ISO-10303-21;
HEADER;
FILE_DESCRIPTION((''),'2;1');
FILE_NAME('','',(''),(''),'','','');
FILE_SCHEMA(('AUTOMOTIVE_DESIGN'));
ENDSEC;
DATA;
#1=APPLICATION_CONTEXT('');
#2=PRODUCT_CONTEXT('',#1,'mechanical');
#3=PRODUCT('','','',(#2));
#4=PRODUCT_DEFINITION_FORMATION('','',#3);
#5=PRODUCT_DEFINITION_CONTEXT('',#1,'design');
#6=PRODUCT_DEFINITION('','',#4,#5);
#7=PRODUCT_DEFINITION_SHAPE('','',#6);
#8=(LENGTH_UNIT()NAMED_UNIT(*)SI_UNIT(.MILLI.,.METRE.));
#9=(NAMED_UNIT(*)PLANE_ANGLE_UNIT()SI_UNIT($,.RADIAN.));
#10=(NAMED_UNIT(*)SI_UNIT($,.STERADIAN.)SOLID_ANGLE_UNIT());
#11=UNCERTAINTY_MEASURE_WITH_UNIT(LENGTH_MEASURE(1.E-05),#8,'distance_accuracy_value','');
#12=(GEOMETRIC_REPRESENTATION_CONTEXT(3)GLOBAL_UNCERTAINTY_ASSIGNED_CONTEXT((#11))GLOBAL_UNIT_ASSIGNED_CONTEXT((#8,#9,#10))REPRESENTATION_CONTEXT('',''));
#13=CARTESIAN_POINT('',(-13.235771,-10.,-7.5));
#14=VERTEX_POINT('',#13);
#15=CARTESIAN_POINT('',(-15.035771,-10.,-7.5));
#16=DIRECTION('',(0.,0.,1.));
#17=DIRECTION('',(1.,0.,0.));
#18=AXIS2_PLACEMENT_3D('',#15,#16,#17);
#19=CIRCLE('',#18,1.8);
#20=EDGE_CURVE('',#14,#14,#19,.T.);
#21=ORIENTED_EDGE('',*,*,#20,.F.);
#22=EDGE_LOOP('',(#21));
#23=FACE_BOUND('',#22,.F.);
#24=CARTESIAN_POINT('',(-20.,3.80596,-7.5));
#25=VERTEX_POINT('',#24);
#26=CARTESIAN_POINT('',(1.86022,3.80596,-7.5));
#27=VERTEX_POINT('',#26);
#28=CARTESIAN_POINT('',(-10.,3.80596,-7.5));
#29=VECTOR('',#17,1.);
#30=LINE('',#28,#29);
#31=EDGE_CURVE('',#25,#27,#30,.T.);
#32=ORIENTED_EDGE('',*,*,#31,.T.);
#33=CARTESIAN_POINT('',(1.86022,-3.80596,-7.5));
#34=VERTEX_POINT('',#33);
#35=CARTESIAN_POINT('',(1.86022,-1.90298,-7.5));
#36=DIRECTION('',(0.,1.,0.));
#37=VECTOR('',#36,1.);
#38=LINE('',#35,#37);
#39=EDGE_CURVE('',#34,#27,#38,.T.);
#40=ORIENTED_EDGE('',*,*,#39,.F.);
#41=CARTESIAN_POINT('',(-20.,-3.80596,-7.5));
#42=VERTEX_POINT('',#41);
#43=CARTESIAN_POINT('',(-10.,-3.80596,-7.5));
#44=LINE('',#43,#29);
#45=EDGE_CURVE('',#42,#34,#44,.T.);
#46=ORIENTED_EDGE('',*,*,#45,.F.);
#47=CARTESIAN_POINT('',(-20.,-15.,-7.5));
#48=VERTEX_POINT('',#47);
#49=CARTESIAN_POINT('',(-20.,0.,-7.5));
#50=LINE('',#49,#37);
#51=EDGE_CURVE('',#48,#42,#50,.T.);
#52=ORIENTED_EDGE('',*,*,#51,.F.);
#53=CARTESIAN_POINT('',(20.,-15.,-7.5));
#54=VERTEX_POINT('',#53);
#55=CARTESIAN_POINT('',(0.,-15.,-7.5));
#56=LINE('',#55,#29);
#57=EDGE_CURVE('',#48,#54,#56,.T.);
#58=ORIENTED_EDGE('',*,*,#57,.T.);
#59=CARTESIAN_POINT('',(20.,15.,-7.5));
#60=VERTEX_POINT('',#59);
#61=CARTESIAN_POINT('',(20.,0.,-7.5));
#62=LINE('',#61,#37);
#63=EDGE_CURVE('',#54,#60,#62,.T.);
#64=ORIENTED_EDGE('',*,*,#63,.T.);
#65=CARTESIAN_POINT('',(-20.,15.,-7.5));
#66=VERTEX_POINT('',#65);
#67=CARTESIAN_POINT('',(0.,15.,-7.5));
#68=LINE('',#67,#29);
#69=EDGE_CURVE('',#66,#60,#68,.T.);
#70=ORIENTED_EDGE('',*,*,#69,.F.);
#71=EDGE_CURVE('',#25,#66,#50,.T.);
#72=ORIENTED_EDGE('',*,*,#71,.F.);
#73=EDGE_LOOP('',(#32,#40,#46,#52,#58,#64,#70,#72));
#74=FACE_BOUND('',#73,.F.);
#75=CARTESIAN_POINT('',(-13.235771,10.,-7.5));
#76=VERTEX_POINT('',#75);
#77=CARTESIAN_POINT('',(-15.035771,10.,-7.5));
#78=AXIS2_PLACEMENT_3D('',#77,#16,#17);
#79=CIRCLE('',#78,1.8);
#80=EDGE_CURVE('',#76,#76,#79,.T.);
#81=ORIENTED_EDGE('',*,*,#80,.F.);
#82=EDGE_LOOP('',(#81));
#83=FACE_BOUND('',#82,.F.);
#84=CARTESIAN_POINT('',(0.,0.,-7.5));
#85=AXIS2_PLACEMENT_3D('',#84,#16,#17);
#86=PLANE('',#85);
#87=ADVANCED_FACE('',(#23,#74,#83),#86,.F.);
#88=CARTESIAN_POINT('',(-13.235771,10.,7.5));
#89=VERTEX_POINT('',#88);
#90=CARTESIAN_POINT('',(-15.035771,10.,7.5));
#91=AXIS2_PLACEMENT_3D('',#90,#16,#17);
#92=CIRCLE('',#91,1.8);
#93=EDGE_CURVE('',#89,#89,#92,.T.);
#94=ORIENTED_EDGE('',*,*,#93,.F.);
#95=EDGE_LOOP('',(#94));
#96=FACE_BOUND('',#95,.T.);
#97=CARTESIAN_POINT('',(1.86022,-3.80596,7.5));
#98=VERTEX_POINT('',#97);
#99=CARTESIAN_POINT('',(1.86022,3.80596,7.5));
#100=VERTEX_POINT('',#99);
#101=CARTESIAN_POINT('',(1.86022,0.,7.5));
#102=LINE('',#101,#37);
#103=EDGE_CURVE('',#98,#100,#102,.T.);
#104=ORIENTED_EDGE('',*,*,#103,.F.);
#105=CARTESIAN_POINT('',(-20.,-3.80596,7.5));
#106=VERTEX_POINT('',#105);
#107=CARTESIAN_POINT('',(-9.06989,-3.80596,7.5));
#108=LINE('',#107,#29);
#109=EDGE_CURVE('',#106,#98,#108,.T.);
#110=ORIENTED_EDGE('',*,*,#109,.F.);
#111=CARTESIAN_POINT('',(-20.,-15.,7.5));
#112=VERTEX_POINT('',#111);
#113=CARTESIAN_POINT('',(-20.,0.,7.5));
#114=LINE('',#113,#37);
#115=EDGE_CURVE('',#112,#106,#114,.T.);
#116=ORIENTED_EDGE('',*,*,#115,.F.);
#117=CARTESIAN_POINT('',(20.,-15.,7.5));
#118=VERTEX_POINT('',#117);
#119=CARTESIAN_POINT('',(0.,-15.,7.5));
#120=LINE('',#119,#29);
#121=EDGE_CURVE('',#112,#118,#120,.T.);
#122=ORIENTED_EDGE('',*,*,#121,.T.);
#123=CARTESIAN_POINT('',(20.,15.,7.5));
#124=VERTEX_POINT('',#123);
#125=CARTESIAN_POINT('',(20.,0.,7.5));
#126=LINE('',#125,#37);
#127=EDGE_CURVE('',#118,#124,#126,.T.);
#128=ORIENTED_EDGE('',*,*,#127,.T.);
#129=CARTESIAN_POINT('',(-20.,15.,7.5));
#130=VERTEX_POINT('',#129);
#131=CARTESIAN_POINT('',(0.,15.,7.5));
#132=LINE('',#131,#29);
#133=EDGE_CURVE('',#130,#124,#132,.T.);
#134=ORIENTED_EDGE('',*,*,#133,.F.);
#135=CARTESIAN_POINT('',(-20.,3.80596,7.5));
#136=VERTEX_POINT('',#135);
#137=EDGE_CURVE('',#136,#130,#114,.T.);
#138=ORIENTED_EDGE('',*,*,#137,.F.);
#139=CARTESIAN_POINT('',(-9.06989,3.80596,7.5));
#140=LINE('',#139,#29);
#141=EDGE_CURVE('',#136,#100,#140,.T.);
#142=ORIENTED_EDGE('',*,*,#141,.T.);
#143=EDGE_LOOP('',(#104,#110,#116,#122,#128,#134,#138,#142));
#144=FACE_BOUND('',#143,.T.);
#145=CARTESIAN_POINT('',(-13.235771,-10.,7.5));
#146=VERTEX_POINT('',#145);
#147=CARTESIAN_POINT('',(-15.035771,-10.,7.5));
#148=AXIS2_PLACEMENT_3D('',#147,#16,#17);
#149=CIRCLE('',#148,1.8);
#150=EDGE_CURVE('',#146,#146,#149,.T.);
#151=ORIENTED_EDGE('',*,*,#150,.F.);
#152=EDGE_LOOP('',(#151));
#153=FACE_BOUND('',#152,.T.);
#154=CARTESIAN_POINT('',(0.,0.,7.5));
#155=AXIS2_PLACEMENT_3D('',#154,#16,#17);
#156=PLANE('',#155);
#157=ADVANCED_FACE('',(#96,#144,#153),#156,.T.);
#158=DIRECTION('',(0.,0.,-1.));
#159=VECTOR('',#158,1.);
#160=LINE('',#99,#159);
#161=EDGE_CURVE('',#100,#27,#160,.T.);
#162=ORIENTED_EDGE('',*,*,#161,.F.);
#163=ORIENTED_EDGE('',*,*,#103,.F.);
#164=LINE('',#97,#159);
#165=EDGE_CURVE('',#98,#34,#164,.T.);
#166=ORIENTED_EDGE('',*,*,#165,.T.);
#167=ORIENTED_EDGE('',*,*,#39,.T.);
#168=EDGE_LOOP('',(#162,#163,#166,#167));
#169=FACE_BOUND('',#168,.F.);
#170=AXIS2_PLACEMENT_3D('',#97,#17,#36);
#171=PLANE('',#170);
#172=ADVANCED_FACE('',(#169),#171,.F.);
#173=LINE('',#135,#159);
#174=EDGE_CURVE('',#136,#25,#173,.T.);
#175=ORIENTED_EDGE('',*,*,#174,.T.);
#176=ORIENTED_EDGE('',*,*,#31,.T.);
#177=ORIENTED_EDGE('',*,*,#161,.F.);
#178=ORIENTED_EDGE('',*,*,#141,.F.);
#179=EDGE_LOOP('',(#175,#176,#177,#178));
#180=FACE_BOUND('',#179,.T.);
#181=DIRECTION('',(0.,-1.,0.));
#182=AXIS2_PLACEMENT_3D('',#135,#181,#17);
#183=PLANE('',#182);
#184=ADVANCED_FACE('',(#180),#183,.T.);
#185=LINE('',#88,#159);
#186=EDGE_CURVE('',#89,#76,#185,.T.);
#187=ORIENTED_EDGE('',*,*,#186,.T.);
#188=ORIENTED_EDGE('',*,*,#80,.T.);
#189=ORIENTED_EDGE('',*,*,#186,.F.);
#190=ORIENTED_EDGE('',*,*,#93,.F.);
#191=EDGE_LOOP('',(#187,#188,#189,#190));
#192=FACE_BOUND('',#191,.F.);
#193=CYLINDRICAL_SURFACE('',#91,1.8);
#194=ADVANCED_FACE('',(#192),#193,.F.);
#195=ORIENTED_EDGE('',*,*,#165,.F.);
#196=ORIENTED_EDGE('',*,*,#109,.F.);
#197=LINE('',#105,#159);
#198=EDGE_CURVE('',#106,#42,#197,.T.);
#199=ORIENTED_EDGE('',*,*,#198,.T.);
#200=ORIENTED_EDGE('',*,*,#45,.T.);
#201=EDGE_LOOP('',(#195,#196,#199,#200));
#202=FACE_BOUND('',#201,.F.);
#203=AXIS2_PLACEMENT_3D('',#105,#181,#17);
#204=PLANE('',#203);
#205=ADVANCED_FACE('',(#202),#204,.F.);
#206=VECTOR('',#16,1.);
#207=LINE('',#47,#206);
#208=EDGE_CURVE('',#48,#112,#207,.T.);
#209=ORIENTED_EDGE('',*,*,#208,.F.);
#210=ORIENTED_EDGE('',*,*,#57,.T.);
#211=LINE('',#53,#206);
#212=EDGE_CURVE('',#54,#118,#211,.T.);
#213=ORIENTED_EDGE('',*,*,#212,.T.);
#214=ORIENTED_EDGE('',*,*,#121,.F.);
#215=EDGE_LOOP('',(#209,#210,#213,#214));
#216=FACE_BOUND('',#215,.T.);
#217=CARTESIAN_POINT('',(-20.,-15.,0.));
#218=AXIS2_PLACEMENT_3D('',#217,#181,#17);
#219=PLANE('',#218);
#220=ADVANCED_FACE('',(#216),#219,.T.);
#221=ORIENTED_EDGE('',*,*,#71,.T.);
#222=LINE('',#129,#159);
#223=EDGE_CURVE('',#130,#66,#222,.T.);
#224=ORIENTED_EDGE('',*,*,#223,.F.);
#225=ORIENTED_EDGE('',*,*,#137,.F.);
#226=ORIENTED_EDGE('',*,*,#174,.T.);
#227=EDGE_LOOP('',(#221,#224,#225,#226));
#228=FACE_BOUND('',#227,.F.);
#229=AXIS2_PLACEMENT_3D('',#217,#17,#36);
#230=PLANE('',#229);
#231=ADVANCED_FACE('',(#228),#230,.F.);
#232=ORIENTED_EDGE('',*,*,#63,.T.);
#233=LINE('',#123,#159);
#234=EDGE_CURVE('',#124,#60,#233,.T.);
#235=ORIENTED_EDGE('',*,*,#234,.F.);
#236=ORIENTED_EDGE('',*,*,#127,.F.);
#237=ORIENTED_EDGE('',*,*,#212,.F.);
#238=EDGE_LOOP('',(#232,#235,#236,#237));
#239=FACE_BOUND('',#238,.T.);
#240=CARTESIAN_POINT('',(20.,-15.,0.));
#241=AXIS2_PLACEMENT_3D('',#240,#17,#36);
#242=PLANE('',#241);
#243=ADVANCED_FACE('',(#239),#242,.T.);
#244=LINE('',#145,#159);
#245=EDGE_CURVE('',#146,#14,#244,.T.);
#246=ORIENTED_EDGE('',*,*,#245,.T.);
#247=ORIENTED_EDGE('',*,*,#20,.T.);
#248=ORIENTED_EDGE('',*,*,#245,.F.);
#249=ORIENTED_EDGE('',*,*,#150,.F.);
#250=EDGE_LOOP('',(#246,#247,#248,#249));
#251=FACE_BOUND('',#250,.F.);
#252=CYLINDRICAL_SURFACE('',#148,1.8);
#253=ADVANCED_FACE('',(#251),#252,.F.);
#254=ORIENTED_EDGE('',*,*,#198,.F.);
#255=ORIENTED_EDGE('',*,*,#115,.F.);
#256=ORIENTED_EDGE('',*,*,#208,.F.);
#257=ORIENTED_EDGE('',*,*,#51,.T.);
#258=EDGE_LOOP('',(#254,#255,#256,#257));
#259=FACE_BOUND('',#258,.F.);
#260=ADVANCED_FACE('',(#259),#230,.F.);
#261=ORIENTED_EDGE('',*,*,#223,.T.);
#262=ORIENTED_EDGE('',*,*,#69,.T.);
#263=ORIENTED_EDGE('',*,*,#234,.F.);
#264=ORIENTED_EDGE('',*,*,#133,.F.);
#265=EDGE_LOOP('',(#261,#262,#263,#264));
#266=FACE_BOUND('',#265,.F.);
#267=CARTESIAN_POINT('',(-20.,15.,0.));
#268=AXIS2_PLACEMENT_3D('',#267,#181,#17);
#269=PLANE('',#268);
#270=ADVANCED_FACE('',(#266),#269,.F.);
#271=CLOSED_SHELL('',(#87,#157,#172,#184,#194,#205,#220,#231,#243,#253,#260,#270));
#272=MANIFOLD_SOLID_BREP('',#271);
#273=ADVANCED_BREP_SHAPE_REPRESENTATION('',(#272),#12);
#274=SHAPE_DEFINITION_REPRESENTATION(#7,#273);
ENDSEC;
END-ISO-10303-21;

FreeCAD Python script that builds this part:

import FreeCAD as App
import Part
import Sketcher
from FreeCAD import Vector


def add_polygon(sketch, points):
    """Adds a closed chain of lines whose ends are joined by coincident constraints."""
    first, n = sketch.GeometryCount, len(points)
    for a, b in zip(points, points[1:] + points[:1]):
        sketch.addGeometry(Part.LineSegment(App.Vector(*a, 0), App.Vector(*b, 0)), False)
    for i in range(n):
        sketch.addConstraint(Sketcher.Constraint("Coincident", first + i, 2, first + (i + 1) % n, 1))

doc = App.newDocument("Part")
body = doc.addObject("PartDesign::Body", "Body")

# Sketch on XY plane
sketch1 = doc.addObject("Sketcher::SketchObject", "Sketch")
body.addObject(sketch1)
sketch1.AttachmentSupport = (doc.XY_Plane, [""])
sketch1.MapMode = "FlatFace"
add_polygon(sketch1, [(-20, 15), (-20, -15), (20, -15), (20, 15)])  # lines 0-3
sketch1.addConstraint([
    Sketcher.Constraint("Vertical", 0),
    Sketcher.Constraint("Horizontal", 1),
    Sketcher.Constraint("Vertical", 2),
    Sketcher.Constraint("Horizontal", 3),
    Sketcher.Constraint("Symmetric", 0, 2, 2, 2, -1, 1),
    Sketcher.Constraint("DistanceX", 1, 1, 1, 2, 40.0),
    Sketcher.Constraint("DistanceY", 0, 2, 0, 1, 30.0),
])
pad1 = doc.addObject("PartDesign::Pad", "Pad")
body.addObject(pad1)
pad1.Profile = sketch1
pad1.Length = 15
pad1.Midplane = True

# Sketch on XY plane
sketch2 = doc.addObject("Sketcher::SketchObject", "Sketch001")
body.addObject(sketch2)
sketch2.AttachmentSupport = (doc.XY_Plane, [""])
sketch2.MapMode = "FlatFace"
sketch2.AttachmentOffset = App.Placement(Vector(0, 0, 7.5), App.Rotation())
add_polygon(sketch2, [(-20, 4), (-20, -4), (2, -4), (2, 4)])  # lines 0-3
sketch2.addConstraint([
    Sketcher.Constraint("Vertical", 0),
    Sketcher.Constraint("Horizontal", 1),
    Sketcher.Constraint("Vertical", 2),
    Sketcher.Constraint("Horizontal", 3),
    Sketcher.Constraint("DistanceX", 0, 2, -1, 1, 20.0),
    Sketcher.Constraint("DistanceX", 1, 1, 1, 2, 21.86022),
    Sketcher.Constraint("DistanceY", 0, 2, 0, 1, 7.61192),
    Sketcher.Constraint("DistanceY", 0, 2, -1, 1, 3.80596),
])
pocket1 = doc.addObject("PartDesign::Pocket", "Pocket")
body.addObject(pocket1)
pocket1.Profile = sketch2
pocket1.Length = 25

# Sketch on XY plane
sketch3 = doc.addObject("Sketcher::SketchObject", "Sketch002")
body.addObject(sketch3)
sketch3.AttachmentSupport = (doc.XY_Plane, [""])
sketch3.MapMode = "FlatFace"
sketch3.AttachmentOffset = App.Placement(Vector(0, 0, 7.5), App.Rotation())
sketch3.addGeometry([
    Part.Circle(Vector(-15, -10, 0), Vector(0, 0, 1), 1.8),
    Part.Circle(Vector(-15, 10, 0), Vector(0, 0, 1), 1.8),
], False)
sketch3.addConstraint([
    Sketcher.Constraint("Equal", 0, 1),
    Sketcher.Constraint("Symmetric", 0, 3, 1, 3, -1),
    Sketcher.Constraint("Diameter", 0, 3.6),
    Sketcher.Constraint("DistanceY", 0, 3, -1, 1, 10.0),
    Sketcher.Constraint("DistanceX", 0, 3, -1, 1, 15.035771),
])
pocket2 = doc.addObject("PartDesign::Pocket", "Pocket001")
body.addObject(pocket2)
pocket2.Profile = sketch3
pocket2.Length = 20

doc.recompute()
